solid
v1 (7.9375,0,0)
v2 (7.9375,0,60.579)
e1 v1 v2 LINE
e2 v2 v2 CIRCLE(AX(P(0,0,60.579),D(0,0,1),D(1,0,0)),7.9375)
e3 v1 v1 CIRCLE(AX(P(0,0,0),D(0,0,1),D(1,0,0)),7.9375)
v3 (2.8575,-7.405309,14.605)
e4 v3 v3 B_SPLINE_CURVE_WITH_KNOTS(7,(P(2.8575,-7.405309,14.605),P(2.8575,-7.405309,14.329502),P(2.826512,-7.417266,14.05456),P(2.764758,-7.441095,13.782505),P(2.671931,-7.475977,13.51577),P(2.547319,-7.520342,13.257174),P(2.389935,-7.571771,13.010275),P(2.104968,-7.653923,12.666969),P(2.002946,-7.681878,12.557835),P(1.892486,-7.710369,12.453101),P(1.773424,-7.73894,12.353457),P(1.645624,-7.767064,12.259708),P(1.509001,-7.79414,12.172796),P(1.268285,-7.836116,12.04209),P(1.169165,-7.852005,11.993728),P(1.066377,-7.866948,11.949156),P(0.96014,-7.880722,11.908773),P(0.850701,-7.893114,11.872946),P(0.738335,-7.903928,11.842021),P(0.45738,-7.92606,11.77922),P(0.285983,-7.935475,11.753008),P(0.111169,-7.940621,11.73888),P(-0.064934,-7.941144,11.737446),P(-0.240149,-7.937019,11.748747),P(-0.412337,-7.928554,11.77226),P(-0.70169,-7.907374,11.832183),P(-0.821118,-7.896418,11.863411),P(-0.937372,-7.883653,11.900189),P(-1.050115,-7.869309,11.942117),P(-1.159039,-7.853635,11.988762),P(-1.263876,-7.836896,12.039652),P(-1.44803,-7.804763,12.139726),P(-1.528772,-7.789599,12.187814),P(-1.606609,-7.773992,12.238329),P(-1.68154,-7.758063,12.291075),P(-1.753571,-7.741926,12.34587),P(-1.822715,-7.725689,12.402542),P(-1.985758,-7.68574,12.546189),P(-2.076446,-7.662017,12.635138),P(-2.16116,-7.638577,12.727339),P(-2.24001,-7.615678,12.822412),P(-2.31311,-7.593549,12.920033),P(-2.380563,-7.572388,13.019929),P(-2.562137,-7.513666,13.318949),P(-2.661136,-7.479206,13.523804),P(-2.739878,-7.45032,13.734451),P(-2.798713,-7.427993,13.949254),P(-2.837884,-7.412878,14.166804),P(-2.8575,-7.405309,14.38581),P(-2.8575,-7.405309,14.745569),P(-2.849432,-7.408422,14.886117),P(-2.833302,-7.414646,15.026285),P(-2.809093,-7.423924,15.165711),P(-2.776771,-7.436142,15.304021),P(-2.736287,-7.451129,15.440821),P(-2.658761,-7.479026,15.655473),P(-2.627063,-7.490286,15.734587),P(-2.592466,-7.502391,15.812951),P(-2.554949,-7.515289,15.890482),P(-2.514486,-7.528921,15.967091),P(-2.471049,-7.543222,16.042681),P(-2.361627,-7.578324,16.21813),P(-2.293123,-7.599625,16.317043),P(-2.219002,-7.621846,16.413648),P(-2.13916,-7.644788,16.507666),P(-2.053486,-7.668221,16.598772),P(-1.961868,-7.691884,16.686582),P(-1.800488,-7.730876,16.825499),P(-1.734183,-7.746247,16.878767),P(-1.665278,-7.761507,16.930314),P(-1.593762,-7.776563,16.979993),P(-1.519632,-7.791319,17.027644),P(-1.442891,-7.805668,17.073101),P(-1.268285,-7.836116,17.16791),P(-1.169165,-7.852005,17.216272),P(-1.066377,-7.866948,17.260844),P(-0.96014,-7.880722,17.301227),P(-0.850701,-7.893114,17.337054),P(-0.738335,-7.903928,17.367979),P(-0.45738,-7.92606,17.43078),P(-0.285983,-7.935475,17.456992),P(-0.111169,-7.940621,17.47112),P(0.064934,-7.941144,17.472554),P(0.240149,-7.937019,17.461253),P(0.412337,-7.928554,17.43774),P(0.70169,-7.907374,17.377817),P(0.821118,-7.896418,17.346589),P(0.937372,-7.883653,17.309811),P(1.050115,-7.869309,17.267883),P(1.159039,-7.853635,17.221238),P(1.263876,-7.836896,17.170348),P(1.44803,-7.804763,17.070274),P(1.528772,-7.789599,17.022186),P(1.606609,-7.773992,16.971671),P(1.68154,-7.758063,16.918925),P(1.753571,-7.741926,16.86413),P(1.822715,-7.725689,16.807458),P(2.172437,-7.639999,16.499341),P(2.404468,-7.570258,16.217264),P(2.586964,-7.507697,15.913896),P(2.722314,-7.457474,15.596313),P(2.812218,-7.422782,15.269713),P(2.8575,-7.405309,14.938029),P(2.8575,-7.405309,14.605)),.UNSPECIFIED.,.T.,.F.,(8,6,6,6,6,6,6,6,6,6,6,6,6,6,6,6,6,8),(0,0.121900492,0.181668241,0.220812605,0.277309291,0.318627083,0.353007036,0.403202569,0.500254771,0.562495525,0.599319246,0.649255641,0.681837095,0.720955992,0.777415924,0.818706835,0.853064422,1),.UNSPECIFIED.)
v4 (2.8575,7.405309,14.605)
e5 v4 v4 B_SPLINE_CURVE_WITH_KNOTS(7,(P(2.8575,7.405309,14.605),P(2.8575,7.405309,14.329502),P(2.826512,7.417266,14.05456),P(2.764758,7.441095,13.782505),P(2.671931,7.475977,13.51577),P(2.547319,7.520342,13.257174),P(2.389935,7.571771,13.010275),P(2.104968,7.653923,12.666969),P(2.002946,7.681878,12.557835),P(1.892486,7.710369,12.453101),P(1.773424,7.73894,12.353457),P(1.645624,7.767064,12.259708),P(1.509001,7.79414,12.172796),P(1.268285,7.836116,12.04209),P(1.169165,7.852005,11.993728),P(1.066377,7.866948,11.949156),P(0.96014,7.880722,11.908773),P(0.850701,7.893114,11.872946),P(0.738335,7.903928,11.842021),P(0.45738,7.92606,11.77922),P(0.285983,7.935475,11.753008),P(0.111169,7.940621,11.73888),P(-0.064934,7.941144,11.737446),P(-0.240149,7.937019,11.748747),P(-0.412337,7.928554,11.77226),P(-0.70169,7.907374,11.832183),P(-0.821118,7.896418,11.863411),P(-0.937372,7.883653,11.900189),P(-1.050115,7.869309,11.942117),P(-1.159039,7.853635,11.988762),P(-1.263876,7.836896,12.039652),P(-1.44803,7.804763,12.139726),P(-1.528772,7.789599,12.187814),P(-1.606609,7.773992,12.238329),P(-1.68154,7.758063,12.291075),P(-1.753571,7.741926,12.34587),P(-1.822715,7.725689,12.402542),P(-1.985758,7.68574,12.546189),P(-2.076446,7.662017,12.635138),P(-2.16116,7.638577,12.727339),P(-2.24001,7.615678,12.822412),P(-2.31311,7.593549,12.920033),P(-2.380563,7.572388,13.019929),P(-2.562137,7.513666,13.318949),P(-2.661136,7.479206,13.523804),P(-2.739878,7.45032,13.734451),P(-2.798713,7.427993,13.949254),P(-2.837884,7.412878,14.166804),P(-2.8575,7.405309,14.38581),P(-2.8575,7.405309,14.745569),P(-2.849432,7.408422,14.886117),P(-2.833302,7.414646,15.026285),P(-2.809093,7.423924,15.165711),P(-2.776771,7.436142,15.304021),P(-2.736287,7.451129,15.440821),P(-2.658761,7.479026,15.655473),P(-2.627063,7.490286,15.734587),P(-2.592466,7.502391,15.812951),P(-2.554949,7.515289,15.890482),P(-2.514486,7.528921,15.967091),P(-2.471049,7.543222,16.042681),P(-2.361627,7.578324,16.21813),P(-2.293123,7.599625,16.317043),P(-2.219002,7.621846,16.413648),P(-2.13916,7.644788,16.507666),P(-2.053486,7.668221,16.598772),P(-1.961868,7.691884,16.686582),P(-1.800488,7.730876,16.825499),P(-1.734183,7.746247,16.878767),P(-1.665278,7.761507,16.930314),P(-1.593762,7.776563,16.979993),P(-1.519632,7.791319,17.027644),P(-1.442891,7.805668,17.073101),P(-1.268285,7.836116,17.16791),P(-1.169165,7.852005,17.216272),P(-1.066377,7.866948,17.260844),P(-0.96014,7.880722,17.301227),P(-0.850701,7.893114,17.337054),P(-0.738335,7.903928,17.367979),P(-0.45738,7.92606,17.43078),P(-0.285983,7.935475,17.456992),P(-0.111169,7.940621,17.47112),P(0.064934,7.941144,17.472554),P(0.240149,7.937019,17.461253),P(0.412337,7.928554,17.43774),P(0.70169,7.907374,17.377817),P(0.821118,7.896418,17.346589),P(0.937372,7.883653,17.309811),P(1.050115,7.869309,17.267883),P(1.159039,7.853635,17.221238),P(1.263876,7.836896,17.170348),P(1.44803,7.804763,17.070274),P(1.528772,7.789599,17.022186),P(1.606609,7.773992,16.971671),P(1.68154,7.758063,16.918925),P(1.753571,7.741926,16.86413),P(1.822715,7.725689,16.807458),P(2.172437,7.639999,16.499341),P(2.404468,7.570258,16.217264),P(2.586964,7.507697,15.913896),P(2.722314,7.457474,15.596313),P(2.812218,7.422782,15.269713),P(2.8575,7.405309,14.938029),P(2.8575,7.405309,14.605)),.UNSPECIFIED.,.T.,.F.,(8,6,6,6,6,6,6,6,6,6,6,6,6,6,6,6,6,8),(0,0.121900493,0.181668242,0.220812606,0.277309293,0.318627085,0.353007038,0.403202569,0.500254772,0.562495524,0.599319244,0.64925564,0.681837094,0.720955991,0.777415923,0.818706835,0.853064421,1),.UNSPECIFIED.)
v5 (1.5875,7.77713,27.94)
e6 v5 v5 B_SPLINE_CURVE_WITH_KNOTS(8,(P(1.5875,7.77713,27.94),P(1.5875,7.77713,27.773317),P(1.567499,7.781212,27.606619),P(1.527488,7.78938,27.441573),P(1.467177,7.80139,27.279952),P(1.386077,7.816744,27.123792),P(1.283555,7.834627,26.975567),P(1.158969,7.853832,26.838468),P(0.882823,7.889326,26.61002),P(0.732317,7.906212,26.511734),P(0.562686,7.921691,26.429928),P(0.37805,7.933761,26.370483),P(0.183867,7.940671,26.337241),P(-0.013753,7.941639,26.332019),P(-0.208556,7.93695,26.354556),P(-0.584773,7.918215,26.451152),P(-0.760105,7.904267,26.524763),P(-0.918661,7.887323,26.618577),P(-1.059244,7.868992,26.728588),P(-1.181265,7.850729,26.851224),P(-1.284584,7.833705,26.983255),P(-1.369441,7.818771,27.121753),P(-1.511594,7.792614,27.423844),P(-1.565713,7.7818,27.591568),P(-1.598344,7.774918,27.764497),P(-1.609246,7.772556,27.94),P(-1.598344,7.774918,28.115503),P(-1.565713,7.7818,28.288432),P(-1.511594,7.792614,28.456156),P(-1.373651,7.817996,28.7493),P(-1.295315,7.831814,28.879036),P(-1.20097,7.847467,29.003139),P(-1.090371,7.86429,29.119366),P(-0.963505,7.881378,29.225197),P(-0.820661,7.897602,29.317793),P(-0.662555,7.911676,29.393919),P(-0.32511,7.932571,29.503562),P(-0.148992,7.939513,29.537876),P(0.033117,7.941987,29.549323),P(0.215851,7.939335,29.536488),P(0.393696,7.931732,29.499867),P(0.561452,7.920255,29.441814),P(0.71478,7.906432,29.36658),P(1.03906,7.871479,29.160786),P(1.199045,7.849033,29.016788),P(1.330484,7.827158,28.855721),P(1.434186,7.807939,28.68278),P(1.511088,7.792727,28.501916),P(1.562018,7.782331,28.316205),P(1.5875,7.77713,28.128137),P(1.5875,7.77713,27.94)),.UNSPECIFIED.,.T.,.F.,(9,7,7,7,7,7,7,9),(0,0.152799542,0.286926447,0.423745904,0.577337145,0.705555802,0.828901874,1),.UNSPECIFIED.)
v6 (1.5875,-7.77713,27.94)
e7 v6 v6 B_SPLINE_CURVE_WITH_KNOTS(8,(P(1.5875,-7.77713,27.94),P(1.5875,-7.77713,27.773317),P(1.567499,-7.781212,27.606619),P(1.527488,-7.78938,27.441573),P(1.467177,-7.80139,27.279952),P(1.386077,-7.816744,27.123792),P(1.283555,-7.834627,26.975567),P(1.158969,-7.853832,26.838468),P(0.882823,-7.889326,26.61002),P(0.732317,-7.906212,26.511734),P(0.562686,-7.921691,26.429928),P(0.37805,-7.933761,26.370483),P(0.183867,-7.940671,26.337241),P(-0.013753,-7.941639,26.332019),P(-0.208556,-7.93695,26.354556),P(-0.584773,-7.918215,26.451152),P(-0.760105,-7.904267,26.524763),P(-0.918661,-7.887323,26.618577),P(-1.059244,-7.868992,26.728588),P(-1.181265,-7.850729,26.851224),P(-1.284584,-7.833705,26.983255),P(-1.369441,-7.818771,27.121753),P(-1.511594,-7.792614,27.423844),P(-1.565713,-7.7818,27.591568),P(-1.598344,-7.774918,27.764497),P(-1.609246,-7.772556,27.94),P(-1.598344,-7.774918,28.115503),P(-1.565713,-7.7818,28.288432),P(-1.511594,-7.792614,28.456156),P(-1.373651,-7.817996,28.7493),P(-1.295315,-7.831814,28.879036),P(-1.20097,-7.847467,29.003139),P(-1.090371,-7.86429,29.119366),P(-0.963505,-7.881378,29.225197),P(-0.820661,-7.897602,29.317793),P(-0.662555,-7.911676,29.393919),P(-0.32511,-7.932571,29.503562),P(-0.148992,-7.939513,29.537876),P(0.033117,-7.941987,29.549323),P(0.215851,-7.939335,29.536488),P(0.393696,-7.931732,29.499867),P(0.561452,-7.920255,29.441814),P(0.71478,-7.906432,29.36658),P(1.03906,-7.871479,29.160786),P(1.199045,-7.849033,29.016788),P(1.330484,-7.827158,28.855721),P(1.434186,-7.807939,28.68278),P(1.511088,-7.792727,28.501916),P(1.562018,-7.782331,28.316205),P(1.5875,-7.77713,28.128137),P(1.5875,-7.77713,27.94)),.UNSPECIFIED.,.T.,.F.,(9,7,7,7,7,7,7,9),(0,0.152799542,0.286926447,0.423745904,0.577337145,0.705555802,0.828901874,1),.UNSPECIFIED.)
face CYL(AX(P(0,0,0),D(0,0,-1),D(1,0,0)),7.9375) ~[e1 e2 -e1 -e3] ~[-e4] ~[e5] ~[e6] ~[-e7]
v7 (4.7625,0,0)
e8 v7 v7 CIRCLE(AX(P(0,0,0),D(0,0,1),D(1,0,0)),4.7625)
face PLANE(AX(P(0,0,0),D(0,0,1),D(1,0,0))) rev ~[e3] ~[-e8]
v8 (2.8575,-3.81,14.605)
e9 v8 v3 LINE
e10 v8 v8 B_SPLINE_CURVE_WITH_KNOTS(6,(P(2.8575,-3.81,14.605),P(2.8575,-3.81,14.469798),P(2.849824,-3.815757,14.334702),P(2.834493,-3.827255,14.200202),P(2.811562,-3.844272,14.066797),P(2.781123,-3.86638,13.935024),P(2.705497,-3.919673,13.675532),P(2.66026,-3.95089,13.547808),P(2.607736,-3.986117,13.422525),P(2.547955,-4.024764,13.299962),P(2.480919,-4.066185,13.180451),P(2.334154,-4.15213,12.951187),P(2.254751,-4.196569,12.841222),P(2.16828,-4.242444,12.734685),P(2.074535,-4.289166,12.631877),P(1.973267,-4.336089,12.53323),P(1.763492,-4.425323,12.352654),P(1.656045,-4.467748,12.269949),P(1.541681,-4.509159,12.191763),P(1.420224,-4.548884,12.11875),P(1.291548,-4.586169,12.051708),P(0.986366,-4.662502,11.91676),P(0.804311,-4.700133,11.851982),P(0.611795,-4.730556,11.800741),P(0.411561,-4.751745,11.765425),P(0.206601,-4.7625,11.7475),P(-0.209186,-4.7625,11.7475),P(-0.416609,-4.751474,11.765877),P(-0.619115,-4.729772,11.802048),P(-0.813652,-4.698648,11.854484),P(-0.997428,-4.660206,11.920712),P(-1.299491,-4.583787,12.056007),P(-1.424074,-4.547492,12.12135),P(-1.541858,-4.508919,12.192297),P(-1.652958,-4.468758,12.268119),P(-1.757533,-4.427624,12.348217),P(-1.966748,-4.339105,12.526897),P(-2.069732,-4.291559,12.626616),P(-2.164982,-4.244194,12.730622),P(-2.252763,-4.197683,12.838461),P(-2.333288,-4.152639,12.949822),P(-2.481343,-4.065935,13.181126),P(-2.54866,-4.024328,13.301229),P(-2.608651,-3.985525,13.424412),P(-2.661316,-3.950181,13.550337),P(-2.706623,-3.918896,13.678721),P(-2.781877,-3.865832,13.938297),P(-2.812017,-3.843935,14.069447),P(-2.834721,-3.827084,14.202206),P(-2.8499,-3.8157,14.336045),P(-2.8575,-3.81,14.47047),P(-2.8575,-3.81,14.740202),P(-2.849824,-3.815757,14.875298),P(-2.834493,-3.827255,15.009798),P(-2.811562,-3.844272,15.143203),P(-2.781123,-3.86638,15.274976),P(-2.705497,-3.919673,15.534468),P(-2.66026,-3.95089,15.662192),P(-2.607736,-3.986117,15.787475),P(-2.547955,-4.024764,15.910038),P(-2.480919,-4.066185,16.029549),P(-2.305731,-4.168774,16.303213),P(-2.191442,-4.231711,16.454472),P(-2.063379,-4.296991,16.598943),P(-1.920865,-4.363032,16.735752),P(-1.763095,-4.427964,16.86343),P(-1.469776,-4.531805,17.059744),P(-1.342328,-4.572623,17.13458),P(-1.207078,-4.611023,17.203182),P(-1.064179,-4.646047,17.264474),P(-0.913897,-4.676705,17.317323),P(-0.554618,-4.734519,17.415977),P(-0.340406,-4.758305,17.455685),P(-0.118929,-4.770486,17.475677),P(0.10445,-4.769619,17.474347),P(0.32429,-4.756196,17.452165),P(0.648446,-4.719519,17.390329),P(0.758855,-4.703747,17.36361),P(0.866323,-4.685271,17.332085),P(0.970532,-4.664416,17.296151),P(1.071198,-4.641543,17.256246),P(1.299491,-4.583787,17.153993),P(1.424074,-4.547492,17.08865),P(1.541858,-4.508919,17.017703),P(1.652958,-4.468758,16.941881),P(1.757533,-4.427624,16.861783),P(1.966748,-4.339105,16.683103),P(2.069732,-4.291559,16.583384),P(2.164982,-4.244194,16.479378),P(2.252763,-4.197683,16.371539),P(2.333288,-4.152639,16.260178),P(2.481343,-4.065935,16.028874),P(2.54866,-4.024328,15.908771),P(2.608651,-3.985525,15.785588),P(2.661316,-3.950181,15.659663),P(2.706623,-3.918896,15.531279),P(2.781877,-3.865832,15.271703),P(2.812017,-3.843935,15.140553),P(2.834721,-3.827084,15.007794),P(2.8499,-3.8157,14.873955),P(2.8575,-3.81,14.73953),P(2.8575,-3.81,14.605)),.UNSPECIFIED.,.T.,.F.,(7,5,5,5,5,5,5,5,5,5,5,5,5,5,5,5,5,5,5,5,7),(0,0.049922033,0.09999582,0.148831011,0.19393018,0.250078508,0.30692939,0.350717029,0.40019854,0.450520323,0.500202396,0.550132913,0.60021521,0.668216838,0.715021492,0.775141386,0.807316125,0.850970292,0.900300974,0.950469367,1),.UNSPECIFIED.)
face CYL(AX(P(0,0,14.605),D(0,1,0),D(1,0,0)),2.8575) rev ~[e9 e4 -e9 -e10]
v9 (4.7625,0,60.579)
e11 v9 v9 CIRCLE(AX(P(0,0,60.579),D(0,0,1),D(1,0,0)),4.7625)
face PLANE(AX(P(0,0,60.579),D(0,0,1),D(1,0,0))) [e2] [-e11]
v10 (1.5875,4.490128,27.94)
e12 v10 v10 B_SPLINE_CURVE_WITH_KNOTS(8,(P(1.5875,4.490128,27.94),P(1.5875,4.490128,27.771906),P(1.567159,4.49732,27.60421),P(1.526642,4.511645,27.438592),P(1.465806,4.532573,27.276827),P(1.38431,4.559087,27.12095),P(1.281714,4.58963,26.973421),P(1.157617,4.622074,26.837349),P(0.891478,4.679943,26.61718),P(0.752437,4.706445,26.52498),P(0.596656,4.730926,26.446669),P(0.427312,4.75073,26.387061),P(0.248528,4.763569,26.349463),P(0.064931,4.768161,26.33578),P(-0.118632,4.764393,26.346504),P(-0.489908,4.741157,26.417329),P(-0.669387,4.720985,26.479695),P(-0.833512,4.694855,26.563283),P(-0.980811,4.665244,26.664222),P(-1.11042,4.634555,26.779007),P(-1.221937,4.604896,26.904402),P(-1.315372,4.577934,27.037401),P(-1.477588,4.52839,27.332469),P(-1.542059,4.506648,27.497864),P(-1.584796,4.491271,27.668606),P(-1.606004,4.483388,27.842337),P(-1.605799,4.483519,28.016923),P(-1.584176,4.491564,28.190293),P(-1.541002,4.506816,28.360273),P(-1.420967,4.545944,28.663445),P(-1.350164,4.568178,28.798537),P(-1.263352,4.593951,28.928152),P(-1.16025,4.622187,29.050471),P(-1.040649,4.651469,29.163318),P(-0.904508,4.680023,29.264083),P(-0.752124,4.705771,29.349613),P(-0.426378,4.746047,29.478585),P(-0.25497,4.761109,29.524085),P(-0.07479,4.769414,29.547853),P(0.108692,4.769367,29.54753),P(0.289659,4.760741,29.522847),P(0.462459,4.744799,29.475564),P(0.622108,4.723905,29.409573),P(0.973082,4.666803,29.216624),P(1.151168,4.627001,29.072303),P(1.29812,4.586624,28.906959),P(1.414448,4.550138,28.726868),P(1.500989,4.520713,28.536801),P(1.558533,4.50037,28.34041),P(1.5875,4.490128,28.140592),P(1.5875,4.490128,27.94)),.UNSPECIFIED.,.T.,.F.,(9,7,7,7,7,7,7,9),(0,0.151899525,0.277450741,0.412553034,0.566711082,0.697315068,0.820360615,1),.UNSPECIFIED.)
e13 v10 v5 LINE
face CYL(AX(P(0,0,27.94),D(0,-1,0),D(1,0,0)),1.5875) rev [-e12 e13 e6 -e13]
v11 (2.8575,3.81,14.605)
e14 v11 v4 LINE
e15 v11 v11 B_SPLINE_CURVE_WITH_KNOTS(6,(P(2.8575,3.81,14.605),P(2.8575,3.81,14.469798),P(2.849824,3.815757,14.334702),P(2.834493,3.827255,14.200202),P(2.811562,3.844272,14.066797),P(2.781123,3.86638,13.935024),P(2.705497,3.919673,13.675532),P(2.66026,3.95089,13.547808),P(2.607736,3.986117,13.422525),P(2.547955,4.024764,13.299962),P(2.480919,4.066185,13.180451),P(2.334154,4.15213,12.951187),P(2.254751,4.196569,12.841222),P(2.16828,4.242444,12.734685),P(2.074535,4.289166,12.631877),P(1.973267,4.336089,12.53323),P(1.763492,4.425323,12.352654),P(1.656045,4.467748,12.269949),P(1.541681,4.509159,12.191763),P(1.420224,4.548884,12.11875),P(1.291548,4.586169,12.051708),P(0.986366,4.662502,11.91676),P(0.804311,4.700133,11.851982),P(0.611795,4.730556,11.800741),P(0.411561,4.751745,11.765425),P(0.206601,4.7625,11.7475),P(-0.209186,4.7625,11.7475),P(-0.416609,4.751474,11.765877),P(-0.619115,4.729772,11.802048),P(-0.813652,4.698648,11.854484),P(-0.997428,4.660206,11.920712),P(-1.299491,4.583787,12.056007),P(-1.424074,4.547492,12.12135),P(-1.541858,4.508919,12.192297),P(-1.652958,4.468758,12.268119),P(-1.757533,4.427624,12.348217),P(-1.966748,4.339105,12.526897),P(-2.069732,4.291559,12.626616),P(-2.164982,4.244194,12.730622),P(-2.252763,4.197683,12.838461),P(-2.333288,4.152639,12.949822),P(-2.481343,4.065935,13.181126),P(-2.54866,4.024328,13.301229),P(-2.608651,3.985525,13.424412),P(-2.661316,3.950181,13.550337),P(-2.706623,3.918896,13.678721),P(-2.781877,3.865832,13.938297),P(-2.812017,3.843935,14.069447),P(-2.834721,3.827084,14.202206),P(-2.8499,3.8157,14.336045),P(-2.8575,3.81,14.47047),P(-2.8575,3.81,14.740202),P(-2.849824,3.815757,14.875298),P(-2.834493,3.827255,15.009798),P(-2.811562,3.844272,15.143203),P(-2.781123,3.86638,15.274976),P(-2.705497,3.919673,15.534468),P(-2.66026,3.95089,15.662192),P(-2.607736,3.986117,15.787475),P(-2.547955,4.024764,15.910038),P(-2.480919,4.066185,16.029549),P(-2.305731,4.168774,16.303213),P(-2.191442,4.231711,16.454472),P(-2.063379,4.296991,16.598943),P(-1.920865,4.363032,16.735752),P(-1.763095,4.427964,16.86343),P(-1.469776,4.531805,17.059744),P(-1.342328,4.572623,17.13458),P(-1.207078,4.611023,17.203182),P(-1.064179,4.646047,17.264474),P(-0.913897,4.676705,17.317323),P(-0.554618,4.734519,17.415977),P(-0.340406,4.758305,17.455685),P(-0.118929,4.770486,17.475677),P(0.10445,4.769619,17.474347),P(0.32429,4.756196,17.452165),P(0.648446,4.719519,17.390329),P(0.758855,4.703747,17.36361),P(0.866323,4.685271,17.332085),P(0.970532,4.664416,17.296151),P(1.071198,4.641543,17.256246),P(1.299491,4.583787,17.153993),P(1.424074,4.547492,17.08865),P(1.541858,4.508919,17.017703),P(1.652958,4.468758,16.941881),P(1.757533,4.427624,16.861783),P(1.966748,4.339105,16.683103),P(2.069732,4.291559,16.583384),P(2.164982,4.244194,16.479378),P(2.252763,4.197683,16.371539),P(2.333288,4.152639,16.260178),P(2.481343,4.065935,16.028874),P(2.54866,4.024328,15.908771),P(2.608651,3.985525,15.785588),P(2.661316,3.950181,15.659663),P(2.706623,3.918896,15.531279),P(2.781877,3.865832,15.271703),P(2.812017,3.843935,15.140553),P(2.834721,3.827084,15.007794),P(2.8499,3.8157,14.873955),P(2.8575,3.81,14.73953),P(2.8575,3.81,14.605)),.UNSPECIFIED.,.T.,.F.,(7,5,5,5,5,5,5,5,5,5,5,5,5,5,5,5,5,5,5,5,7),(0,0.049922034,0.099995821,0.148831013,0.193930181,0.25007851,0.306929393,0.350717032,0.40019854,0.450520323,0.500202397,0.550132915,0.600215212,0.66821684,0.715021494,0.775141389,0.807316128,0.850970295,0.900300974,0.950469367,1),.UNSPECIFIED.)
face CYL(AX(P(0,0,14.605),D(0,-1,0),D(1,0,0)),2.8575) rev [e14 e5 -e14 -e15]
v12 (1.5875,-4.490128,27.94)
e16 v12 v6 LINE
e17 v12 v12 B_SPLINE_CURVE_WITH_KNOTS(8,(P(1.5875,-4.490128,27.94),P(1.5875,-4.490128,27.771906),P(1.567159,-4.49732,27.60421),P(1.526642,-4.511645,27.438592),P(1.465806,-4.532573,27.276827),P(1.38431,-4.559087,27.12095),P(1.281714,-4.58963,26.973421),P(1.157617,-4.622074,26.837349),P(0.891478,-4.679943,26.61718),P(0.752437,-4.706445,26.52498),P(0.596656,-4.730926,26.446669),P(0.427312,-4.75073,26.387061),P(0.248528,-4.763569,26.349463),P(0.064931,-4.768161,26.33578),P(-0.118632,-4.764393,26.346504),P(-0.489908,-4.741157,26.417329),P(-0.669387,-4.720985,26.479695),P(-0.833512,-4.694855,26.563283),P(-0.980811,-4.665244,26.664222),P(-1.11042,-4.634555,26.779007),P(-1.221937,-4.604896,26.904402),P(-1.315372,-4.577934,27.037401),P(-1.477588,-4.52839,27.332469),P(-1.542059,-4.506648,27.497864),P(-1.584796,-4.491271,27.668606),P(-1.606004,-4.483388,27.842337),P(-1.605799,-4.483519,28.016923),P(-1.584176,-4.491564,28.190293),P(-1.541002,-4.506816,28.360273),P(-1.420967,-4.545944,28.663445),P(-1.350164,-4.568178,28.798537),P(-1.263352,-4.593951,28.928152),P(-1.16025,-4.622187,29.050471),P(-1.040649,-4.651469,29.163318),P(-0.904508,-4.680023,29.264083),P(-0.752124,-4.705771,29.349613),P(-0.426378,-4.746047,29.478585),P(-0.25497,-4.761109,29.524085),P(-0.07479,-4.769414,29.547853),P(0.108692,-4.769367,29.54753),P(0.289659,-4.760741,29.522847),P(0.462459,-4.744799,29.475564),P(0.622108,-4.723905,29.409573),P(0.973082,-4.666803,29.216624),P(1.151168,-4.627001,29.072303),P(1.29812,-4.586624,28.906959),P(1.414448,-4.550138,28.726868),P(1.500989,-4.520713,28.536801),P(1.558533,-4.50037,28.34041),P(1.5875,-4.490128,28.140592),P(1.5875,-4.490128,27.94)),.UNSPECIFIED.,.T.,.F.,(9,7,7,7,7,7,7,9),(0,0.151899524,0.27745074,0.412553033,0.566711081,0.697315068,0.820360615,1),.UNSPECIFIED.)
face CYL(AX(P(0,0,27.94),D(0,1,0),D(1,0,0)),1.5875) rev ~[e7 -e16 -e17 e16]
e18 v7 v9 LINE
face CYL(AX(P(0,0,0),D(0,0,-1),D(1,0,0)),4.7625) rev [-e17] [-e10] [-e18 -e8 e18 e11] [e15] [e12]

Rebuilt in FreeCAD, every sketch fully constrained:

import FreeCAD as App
import Part
import Sketcher

V = App.Vector
Q = App.Units.Quantity

doc = App.newDocument("Part")
params = doc.addObject("Spreadsheet::Sheet", "Params")
for row, (alias, value) in enumerate([
    ("sketch1_diameter", "0.625 in"),
    ("sketch1_diameter2", "0.375 in"),
    ("pad1_length", "2.385 in"),
    ("sketch2_diameter", "0.225 in"),
    ("sketch3_diameter", "0.125 in"),
], start=1):
    params.set(f"A{row}", alias)
    params.set(f"B{row}", "=" + value)
    params.setAlias(f"B{row}", alias)

body = doc.addObject("PartDesign::Body", "Body")

# Sketch on XY plane
sketch1 = body.newObject("Sketcher::SketchObject", "Sketch")
sketch1.AttachmentSupport = (doc.getObject("XY_Plane"), [""])
sketch1.MapMode = "FlatFace"
sketch1.addGeometry([
    Part.Circle(V(0, 0, 0), V(0, 0, 1), 7.9),
    Part.Circle(V(0, 0, 0), V(0, 0, 1), 4.8),
], False)
sketch1.addConstraint([
    Sketcher.Constraint("Coincident", 0, 3, -1, 1),
    Sketcher.Constraint("Coincident", 1, 3, -1, 1),
    Sketcher.Constraint("Diameter", 0, Q("0.625 in")),
    Sketcher.Constraint("Diameter", 1, Q("0.375 in")),
])
sketch1.setExpression("Constraints[2]", "Params.sketch1_diameter")
sketch1.setExpression("Constraints[3]", "Params.sketch1_diameter2")
pad1 = body.newObject("PartDesign::Pad", "Pad")
pad1.Profile = sketch1
pad1.setExpression("Length", "Params.pad1_length")

# Sketch on XZ plane
sketch2 = body.newObject("Sketcher::SketchObject", "Sketch001")
sketch2.AttachmentSupport = (doc.getObject("XZ_Plane"), [""])
sketch2.MapMode = "FlatFace"
sketch2.addGeometry(Part.Circle(V(0, 14.6, 0), V(0, 0, 1), 2.9), False)
sketch2.addConstraint([
    Sketcher.Constraint("PointOnObject", 0, 3, -2),
    Sketcher.Constraint("Diameter", 0, Q("0.225 in")),
    Sketcher.Constraint("DistanceY", -1, 1, 0, 3, Q("0.575 in")),
])
sketch2.setExpression("Constraints[1]", "Params.sketch2_diameter")
pocket1 = body.newObject("PartDesign::Pocket", "Pocket")
pocket1.Profile = sketch2
pocket1.Type = "ThroughAll"
pocket1.Midplane = True

# Sketch on XZ plane
sketch3 = body.newObject("Sketcher::SketchObject", "Sketch002")
sketch3.AttachmentSupport = (doc.getObject("XZ_Plane"), [""])
sketch3.MapMode = "FlatFace"
sketch3.addGeometry(Part.Circle(V(0, 27.9, 0), V(0, 0, 1), 1.6), False)
sketch3.addConstraint([
    Sketcher.Constraint("PointOnObject", 0, 3, -2),
    Sketcher.Constraint("Diameter", 0, Q("0.125 in")),
    Sketcher.Constraint("DistanceY", -1, 1, 0, 3, Q("1.1 in")),
])
sketch3.setExpression("Constraints[1]", "Params.sketch3_diameter")
pocket2 = body.newObject("PartDesign::Pocket", "Pocket001")
pocket2.Profile = sketch3
pocket2.Type = "ThroughAll"
pocket2.Midplane = True

doc.recompute()
